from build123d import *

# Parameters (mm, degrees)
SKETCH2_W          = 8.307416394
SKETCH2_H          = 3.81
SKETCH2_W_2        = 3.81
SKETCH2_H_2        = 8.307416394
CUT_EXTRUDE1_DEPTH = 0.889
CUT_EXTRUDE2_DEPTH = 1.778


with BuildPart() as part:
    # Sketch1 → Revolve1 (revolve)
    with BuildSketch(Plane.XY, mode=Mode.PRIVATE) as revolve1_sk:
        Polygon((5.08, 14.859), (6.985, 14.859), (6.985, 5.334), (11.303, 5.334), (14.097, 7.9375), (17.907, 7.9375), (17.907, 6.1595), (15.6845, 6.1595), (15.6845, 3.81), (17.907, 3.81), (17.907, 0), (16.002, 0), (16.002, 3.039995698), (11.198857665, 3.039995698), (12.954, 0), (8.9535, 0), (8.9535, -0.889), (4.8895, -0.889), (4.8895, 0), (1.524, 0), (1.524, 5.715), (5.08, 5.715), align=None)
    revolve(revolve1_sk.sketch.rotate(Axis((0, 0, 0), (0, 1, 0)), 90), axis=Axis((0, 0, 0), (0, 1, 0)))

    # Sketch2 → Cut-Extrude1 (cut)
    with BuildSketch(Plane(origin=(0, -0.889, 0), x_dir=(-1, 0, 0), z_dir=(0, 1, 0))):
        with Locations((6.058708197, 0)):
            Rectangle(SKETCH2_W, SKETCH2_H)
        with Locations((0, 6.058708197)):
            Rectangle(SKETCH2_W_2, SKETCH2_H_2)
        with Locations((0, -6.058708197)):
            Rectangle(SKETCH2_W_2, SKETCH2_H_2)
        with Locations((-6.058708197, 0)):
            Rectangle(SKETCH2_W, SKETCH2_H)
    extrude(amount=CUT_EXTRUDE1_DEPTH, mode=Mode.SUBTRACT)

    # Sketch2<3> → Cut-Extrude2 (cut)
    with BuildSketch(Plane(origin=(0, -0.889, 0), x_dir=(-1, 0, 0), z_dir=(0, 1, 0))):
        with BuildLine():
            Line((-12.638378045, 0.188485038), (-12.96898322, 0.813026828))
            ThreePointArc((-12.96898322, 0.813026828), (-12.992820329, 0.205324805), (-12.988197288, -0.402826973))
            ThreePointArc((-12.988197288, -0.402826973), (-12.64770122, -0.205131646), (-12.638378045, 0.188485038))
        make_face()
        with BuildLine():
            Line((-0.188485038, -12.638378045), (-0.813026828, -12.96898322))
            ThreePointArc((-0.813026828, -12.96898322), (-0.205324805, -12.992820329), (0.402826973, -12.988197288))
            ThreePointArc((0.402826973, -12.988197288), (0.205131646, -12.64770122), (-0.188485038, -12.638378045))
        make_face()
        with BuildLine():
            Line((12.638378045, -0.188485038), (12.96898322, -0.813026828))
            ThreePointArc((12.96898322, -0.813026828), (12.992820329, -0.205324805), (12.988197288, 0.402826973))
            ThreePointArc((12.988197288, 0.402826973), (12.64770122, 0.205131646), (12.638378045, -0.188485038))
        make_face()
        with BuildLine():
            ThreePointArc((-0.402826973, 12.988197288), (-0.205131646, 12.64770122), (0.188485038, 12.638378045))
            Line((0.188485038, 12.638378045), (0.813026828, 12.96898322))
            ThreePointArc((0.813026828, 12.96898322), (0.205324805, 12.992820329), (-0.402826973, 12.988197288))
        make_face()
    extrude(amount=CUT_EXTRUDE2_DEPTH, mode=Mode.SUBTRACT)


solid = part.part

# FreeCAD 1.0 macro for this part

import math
import FreeCAD as App
import Part
import Sketcher

V = App.Vector
Q = App.Units.Quantity

doc = App.newDocument("Part")
body = doc.addObject("PartDesign::Body", "Body")

# Sketch on XY plane
sketch1 = body.newObject("Sketcher::SketchObject", "Sketch")
sketch1.AttachmentSupport = (doc.getObject("XY_Plane"), [""])
sketch1.MapMode = "FlatFace"
sketch1.addGeometry([
    Part.LineSegment(V(7, 14.9, 0), V(5.1, 14.9, 0)),  # 0
    Part.LineSegment(V(5.1, 14.9, 0), V(5.1, 5.7, 0)),  # 1
    Part.LineSegment(V(5.1, 5.7, 0), V(1.5, 5.7, 0)),  # 2
    Part.LineSegment(V(1.5, 5.7, 0), V(1.5, 0, 0)),  # 3
    Part.LineSegment(V(1.5, 0, 0), V(4.9, 0, 0)),  # 4
    Part.LineSegment(V(4.9, 0, 0), V(4.9, -0.9, 0)),  # 5
    Part.LineSegment(V(4.9, -0.9, 0), V(9, -0.9, 0)),  # 6
    Part.LineSegment(V(9, -0.9, 0), V(9, 0, 0)),  # 7
    Part.LineSegment(V(9, 0, 0), V(13, 0, 0)),  # 8
    Part.LineSegment(V(13, 0, 0), V(11.2, 3, 0)),  # 9
    Part.LineSegment(V(11.2, 3, 0), V(16, 3, 0)),  # 10
    Part.LineSegment(V(16, 3, 0), V(16, 0, 0)),  # 11
    Part.LineSegment(V(16, 0, 0), V(17.9, 0, 0)),  # 12
    Part.LineSegment(V(17.9, 0, 0), V(17.9, 3.8, 0)),  # 13
    Part.LineSegment(V(17.9, 3.8, 0), V(15.7, 3.8, 0)),  # 14
    Part.LineSegment(V(15.7, 3.8, 0), V(15.7, 6.2, 0)),  # 15
    Part.LineSegment(V(15.7, 6.2, 0), V(17.9, 6.2, 0)),  # 16
    Part.LineSegment(V(17.9, 6.2, 0), V(17.9, 7.9, 0)),  # 17
    Part.LineSegment(V(17.9, 7.9, 0), V(14.1, 7.9, 0)),  # 18
    Part.LineSegment(V(14.1, 7.9, 0), V(11.3, 5.3, 0)),  # 19
    Part.LineSegment(V(11.3, 5.3, 0), V(7, 5.3, 0)),  # 20
    Part.LineSegment(V(7, 5.3, 0), V(7, 14.9, 0)),  # 21
], False)
sketch1.addConstraint([
    Sketcher.Constraint("Coincident", 0, 2, 1, 1),
    Sketcher.Constraint("Coincident", 1, 2, 2, 1),
    Sketcher.Constraint("Coincident", 2, 2, 3, 1),
    Sketcher.Constraint("Coincident", 3, 2, 4, 1),
    Sketcher.Constraint("Coincident", 4, 2, 5, 1),
    Sketcher.Constraint("Coincident", 5, 2, 6, 1),
    Sketcher.Constraint("Coincident", 6, 2, 7, 1),
    Sketcher.Constraint("Coincident", 7, 2, 8, 1),
    Sketcher.Constraint("Coincident", 8, 2, 9, 1),
    Sketcher.Constraint("Coincident", 9, 2, 10, 1),
    Sketcher.Constraint("Coincident", 10, 2, 11, 1),
    Sketcher.Constraint("Coincident", 11, 2, 12, 1),
    Sketcher.Constraint("Coincident", 12, 2, 13, 1),
    Sketcher.Constraint("Coincident", 13, 2, 14, 1),
    Sketcher.Constraint("Coincident", 14, 2, 15, 1),
    Sketcher.Constraint("Coincident", 15, 2, 16, 1),
    Sketcher.Constraint("Coincident", 16, 2, 17, 1),
    Sketcher.Constraint("Coincident", 17, 2, 18, 1),
    Sketcher.Constraint("Coincident", 18, 2, 19, 1),
    Sketcher.Constraint("Coincident", 19, 2, 20, 1),
    Sketcher.Constraint("Coincident", 20, 2, 21, 1),
    Sketcher.Constraint("Coincident", 21, 2, 0, 1),
    Sketcher.Constraint("Horizontal", 0),
    Sketcher.Constraint("Vertical", 1),
    Sketcher.Constraint("Horizontal", 2),
    Sketcher.Constraint("Vertical", 3),
    Sketcher.Constraint("Horizontal", 4),
    Sketcher.Constraint("Vertical", 5),
    Sketcher.Constraint("Horizontal", 6),
    Sketcher.Constraint("Vertical", 7),
    Sketcher.Constraint("Horizontal", 8),
    Sketcher.Constraint("Horizontal", 10),
    Sketcher.Constraint("Vertical", 11),
    Sketcher.Constraint("Horizontal", 12),
    Sketcher.Constraint("Vertical", 13),
    Sketcher.Constraint("Horizontal", 14),
    Sketcher.Constraint("Vertical", 15),
    Sketcher.Constraint("Horizontal", 16),
    Sketcher.Constraint("Vertical", 17),
    Sketcher.Constraint("Horizontal", 18),
    Sketcher.Constraint("Horizontal", 20),
    Sketcher.Constraint("Vertical", 21),
    Sketcher.Constraint("PointOnObject", 3, 2, -1),
    Sketcher.Constraint("PointOnObject", 7, 2, -1),
    Sketcher.Constraint("PointOnObject", 11, 2, -1),
    Sketcher.Constraint("Vertical", 13, 2, 16, 2),
    Sketcher.Constraint("Equal", 0, 12),
    Sketcher.Constraint("Equal", 18, 13),
    Sketcher.Constraint("Angle", 9, Q("120 deg")),
    Sketcher.Constraint("DistanceX", 2, 2, 2, 1, Q("0.14 in")),
    Sketcher.Constraint("DistanceX", 6, 1, 6, 2, Q("0.16 in")),
    Sketcher.Constraint("DistanceX", 18, 2, 18, 1, Q("0.15 in")),
    Sketcher.Constraint("DistanceX", 20, 2, 20, 1, Q("0.17 in")),
    Sketcher.Constraint("DistanceY", 1, 2, 1, 1, Q("0.36 in")),
    Sketcher.Constraint("DistanceY", 17, 1, 17, 2, Q("0.07 in")),
    Sketcher.Constraint("DistanceX", -1, 1, 0, 2, Q("0.2 in")),
    Sketcher.Constraint("DistanceX", 0, 2, 0, 1, Q("0.075 in")),
    Sketcher.Constraint("DistanceY", 3, 2, 3, 1, Q("0.225 in")),
    Sketcher.Constraint("DistanceY", 5, 2, 5, 1, Q("0.035 in")),
    Sketcher.Constraint("DistanceY", 21, 1, 21, 2, Q("0.375 in")),
    Sketcher.Constraint("DistanceX", -1, 1, 8, 2, Q("0.51 in")),
    Sketcher.Constraint("DistanceX", -1, 1, 10, 2, Q("0.63 in")),
    Sketcher.Constraint("DistanceX", 4, 1, 4, 2, Q("0.1325 in")),
    Sketcher.Constraint("DistanceX", 10, 1, 10, 2, Q("0.1891001 in")),
    Sketcher.Constraint("DistanceX", 14, 2, 14, 1, Q("0.0875 in")),
    Sketcher.Constraint("DistanceY", 15, 1, 15, 2, Q("0.0925 in")),
])
revolution = body.newObject("PartDesign::Revolution", "Revolution")
revolution.Profile = sketch1
revolution.ReferenceAxis = (sketch1, ["V_Axis"])
revolution.Angle = 360

# Sketch on XZ plane
sketch2 = body.newObject("Sketcher::SketchObject", "Sketch001")
sketch2.AttachmentSupport = (doc.getObject("XZ_Plane"), [""])
sketch2.MapMode = "FlatFace"
sketch2.AttachmentOffset = App.Placement(V(0, 0, 0.035 * 25.4), App.Rotation())
sketch2.addGeometry([
    Part.LineSegment(V(-1.9, 1.9, 0), V(-1.9, -1.9, 0)),  # 0
    Part.LineSegment(V(-1.9, -1.9, 0), V(-10.2, -1.9, 0)),  # 1
    Part.LineSegment(V(-10.2, -1.9, 0), V(-10.2, 1.9, 0)),  # 2
    Part.LineSegment(V(-10.2, 1.9, 0), V(-1.9, 1.9, 0)),  # 3
    Part.LineSegment(V(1.9, 10.2, 0), V(1.9, 1.9, 0)),  # 4
    Part.LineSegment(V(1.9, 1.9, 0), V(-1.9, 1.9, 0)),  # 5
    Part.LineSegment(V(-1.9, 1.9, 0), V(-1.9, 10.2, 0)),  # 6
    Part.LineSegment(V(-1.9, 10.2, 0), V(1.9, 10.2, 0)),  # 7
    Part.LineSegment(V(1.9, -1.9, 0), V(1.9, -10.2, 0)),  # 8
    Part.LineSegment(V(1.9, -10.2, 0), V(-1.9, -10.2, 0)),  # 9
    Part.LineSegment(V(-1.9, -10.2, 0), V(-1.9, -1.9, 0)),  # 10
    Part.LineSegment(V(-1.9, -1.9, 0), V(1.9, -1.9, 0)),  # 11
    Part.LineSegment(V(10.2, 1.9, 0), V(10.2, -1.9, 0)),  # 12
    Part.LineSegment(V(10.2, -1.9, 0), V(1.9, -1.9, 0)),  # 13
    Part.LineSegment(V(1.9, -1.9, 0), V(1.9, 1.9, 0)),  # 14
    Part.LineSegment(V(1.9, 1.9, 0), V(10.2, 1.9, 0)),  # 15
], False)
sketch2.addConstraint([
    Sketcher.Constraint("Coincident", 0, 2, 1, 1),
    Sketcher.Constraint("Coincident", 1, 2, 2, 1),
    Sketcher.Constraint("Coincident", 2, 2, 3, 1),
    Sketcher.Constraint("Coincident", 3, 2, 0, 1),
    Sketcher.Constraint("Coincident", 4, 2, 5, 1),
    Sketcher.Constraint("Coincident", 5, 2, 6, 1),
    Sketcher.Constraint("Coincident", 6, 2, 7, 1),
    Sketcher.Constraint("Coincident", 7, 2, 4, 1),
    Sketcher.Constraint("Coincident", 8, 2, 9, 1),
    Sketcher.Constraint("Coincident", 9, 2, 10, 1),
    Sketcher.Constraint("Coincident", 10, 2, 11, 1),
    Sketcher.Constraint("Coincident", 11, 2, 8, 1),
    Sketcher.Constraint("Coincident", 12, 2, 13, 1),
    Sketcher.Constraint("Coincident", 13, 2, 14, 1),
    Sketcher.Constraint("Coincident", 14, 2, 15, 1),
    Sketcher.Constraint("Coincident", 15, 2, 12, 1),
    Sketcher.Constraint("Vertical", 0),
    Sketcher.Constraint("Horizontal", 1),
    Sketcher.Constraint("Vertical", 2),
    Sketcher.Constraint("Horizontal", 3),
    Sketcher.Constraint("Vertical", 4),
    Sketcher.Constraint("Horizontal", 5),
    Sketcher.Constraint("Vertical", 6),
    Sketcher.Constraint("Horizontal", 7),
    Sketcher.Constraint("Vertical", 8),
    Sketcher.Constraint("Horizontal", 9),
    Sketcher.Constraint("Vertical", 10),
    Sketcher.Constraint("Horizontal", 11),
    Sketcher.Constraint("Vertical", 12),
    Sketcher.Constraint("Horizontal", 13),
    Sketcher.Constraint("Vertical", 14),
    Sketcher.Constraint("Horizontal", 15),
    Sketcher.Constraint("Coincident", 5, 2, 3, 2),
    Sketcher.Constraint("Coincident", 10, 2, 0, 2),
    Sketcher.Constraint("Coincident", 13, 2, 11, 2),
    Sketcher.Constraint("Coincident", 14, 2, 4, 2),
    Sketcher.Constraint("Symmetric", 0, 2, 4, 2, -1, 1),
    Sketcher.Constraint("Equal", 3, 13),
    Sketcher.Constraint("Equal", 11, 0),
    Sketcher.Constraint("Equal", 15, 4),
    Sketcher.Constraint("Equal", 6, 8),
    Sketcher.Constraint("DistanceX", 5, 2, 5, 1, Q("0.15 in")),
    Sketcher.Constraint("DistanceX", 1, 2, 1, 1, 8.307416),
])
pocket1 = body.newObject("PartDesign::Pocket", "Pocket")
pocket1.Profile = sketch2
pocket1.Length = Q("0.035 in")

# Sketch on XZ plane
sketch3 = body.newObject("Sketcher::SketchObject", "Sketch002")
sketch3.AttachmentSupport = (doc.getObject("XZ_Plane"), [""])
sketch3.MapMode = "FlatFace"
sketch3.AttachmentOffset = App.Placement(V(0, 0, 0.035 * 25.4), App.Rotation())
sketch3.addGeometry([
    Part.LineSegment(V(12.64, 0.19, 0), V(12.97, 0.81, 0)),  # 0
    Part.ArcOfCircle(Part.Circle(V(0, 0, 0), V(0, 0, 1), 12.99), math.radians(-1.78), math.radians(3.59)),  # 1
    Part.ArcOfCircle(Part.Circle(V(12.99, 0, 0), V(0, 0, 1), 0.4), math.radians(152), math.radians(269)),  # 2
    Part.LineSegment(V(0.19, -12.64, 0), V(0.81, -12.97, 0)),  # 3
    Part.ArcOfCircle(Part.Circle(V(0, 0, 0), V(0, 0, 1), 12.99), math.radians(-91.78), math.radians(-86.41)),  # 4
    Part.ArcOfCircle(Part.Circle(V(0, -12.99, 0), V(0, 0, 1), 0.4), math.radians(62), math.radians(179)),  # 5
    Part.LineSegment(V(-12.64, -0.19, 0), V(-12.97, -0.81, 0)),  # 6
    Part.ArcOfCircle(Part.Circle(V(0, 0, 0), V(0, 0, 1), 12.99), math.radians(178.22), math.radians(183.59)),  # 7
    Part.ArcOfCircle(Part.Circle(V(-12.99, 0, 0), V(0, 0, 1), 0.4), math.radians(-28), math.radians(89)),  # 8
    Part.ArcOfCircle(Part.Circle(V(0, 12.99, 0), V(0, 0, 1), 0.4), math.radians(-118), math.radians(-1)),  # 9
    Part.LineSegment(V(-0.19, 12.64, 0), V(-0.81, 12.97, 0)),  # 10
    Part.ArcOfCircle(Part.Circle(V(0, 0, 0), V(0, 0, 1), 12.99), math.radians(88.22), math.radians(93.59)),  # 11
], False)
sketch3.addConstraint([
    Sketcher.Constraint("Coincident", 0, 2, 1, 2),
    Sketcher.Constraint("Coincident", 1, 1, 2, 2),
    Sketcher.Constraint("Tangent", 2, 1, 0, 1),
    Sketcher.Constraint("Coincident", 3, 2, 4, 2),
    Sketcher.Constraint("Coincident", 4, 1, 5, 2),
    Sketcher.Constraint("Tangent", 5, 1, 3, 1),
    Sketcher.Constraint("Coincident", 6, 2, 7, 2),
    Sketcher.Constraint("Coincident", 7, 1, 8, 2),
    Sketcher.Constraint("Tangent", 8, 1, 6, 1),
    Sketcher.Constraint("Tangent", 9, 1, 10, 1),
    Sketcher.Constraint("Coincident", 10, 2, 11, 2),
    Sketcher.Constraint("Coincident", 11, 1, 9, 2),
    Sketcher.Constraint("Coincident", 1, 3, -1, 1),
    Sketcher.Constraint("Coincident", 4, 3, -1, 1),
    Sketcher.Constraint("Coincident", 7, 3, -1, 1),
    Sketcher.Constraint("Coincident", 11, 3, -1, 1),
    Sketcher.Constraint("Equal", 1, 4),
    Sketcher.Constraint("Equal", 2, 5),
    Sketcher.Constraint("Equal", 4, 7),
    Sketcher.Constraint("Equal", 5, 8),
    Sketcher.Constraint("Equal", 8, 9),
    Sketcher.Constraint("Equal", 7, 11),
    Sketcher.Constraint("Symmetric", 2, 3, 8, 3, -1, 1),
    Sketcher.Constraint("Symmetric", 5, 3, 9, 3, -1, 1),
    Sketcher.Constraint("PointOnObject", 2, 3, -1),
    Sketcher.Constraint("PointOnObject", 5, 3, -2),
    Sketcher.Constraint("Perpendicular", 0, 3),
    Sketcher.Constraint("Perpendicular", 3, 6),
    Sketcher.Constraint("Perpendicular", 6, 10),
    Sketcher.Constraint("Equal", 0, 3),
    Sketcher.Constraint("Radius", 1, 12.994442),
    Sketcher.Constraint("Radius", 2, 0.402875),
    Sketcher.Constraint("Distance", 0, 0.706649),
    Sketcher.Constraint("DistanceX", -1, 1, 2, 1, 12.638378),
])
pocket2 = body.newObject("PartDesign::Pocket", "Pocket001")
pocket2.Profile = sketch3
pocket2.Length = Q("0.07 in")

doc.recompute()
